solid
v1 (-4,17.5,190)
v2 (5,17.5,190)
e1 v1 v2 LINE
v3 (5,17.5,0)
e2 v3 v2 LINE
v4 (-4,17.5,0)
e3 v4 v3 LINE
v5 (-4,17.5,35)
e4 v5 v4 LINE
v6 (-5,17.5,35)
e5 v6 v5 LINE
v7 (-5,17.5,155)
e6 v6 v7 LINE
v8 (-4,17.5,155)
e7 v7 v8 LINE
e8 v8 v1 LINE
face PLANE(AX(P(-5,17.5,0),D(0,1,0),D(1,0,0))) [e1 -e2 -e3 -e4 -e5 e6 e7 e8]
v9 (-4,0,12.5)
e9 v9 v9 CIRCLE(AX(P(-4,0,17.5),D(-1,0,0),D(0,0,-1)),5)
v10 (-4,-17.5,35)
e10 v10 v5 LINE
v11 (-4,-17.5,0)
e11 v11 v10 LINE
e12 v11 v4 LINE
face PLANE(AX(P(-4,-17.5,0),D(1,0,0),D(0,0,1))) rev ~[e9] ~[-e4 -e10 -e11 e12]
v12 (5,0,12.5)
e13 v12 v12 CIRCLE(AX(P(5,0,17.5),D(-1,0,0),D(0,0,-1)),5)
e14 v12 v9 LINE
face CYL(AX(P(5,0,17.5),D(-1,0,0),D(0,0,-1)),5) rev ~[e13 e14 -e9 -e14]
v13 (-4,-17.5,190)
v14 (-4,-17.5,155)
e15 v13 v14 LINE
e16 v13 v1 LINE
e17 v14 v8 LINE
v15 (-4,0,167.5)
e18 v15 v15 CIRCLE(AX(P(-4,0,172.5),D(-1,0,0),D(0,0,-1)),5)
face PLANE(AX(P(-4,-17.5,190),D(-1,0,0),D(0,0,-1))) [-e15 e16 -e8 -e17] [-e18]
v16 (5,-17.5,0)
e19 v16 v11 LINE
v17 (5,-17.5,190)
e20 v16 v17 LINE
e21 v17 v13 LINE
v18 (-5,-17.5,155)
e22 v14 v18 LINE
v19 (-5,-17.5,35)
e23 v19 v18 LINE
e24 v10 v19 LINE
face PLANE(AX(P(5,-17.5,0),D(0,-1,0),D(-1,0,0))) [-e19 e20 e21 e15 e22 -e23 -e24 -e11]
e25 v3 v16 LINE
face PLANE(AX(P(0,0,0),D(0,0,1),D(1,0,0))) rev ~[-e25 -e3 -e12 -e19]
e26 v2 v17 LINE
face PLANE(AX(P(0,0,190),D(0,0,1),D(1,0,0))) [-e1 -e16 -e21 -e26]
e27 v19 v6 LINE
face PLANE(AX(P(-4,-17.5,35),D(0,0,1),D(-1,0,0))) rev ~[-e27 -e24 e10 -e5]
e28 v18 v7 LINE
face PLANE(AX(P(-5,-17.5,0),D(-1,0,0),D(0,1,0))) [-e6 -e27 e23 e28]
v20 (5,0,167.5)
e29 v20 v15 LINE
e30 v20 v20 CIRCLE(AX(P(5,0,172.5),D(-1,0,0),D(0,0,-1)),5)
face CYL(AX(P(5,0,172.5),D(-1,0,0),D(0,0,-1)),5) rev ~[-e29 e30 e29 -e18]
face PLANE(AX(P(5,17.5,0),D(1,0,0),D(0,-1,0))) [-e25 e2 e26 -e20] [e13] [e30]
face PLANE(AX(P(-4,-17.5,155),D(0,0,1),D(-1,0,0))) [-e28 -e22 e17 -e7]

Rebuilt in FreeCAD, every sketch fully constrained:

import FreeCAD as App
import Part
import Sketcher
from FreeCAD import Vector
Q = App.Units.Quantity


def add_polygon(sketch, points):
    """Adds a closed chain of lines whose ends are joined by coincident constraints."""
    first, n = sketch.GeometryCount, len(points)
    for a, b in zip(points, points[1:] + points[:1]):
        sketch.addGeometry(Part.LineSegment(App.Vector(*a, 0), App.Vector(*b, 0)), False)
    for i in range(n):
        sketch.addConstraint(Sketcher.Constraint("Coincident", first + i, 2, first + (i + 1) % n, 1))

doc = App.newDocument("Part")
body = doc.addObject("PartDesign::Body", "Body")

# Sketch on XY plane
sketch1 = body.newObject("Sketcher::SketchObject", "Sketch")
sketch1.AttachmentSupport = (doc.getObject("XY_Plane"), [""])
sketch1.MapMode = "FlatFace"
add_polygon(sketch1, [(-5, -18), (5, -18), (5, 18), (-5, 18)])  # lines 0-3
sketch1.addConstraint([
    Sketcher.Constraint("Horizontal", 0),
    Sketcher.Constraint("Vertical", 1),
    Sketcher.Constraint("Horizontal", 2),
    Sketcher.Constraint("Vertical", 3),
    Sketcher.Constraint("Symmetric", 0, 2, 2, 2, -1, 1),
    Sketcher.Constraint("DistanceX", 0, 1, 0, 2, Q("10 mm")),
    Sketcher.Constraint("DistanceY", 1, 1, 1, 2, Q("35 mm")),
])
pad1 = body.newObject("PartDesign::Pad", "Pad")
pad1.Profile = sketch1
pad1.Length = 190

# Sketch on YZ plane
sketch2 = body.newObject("Sketcher::SketchObject", "Sketch001")
sketch2.AttachmentSupport = (doc.getObject("YZ_Plane"), [""])
sketch2.MapMode = "FlatFace"
sketch2.AttachmentOffset = App.Placement(Vector(0, 0, 5), App.Rotation())
sketch2.addGeometry([
    Part.Circle(Vector(0, 18, 0), Vector(0, 0, 1), 5),
    Part.Circle(Vector(0, 172, 0), Vector(0, 0, 1), 5),
], False)
sketch2.addConstraint([
    Sketcher.Constraint("Equal", 0, 1),
    Sketcher.Constraint("PointOnObject", 0, 3, -2),
    Sketcher.Constraint("PointOnObject", 1, 3, -2),
    Sketcher.Constraint("Diameter", 0, Q("10 mm")),
    Sketcher.Constraint("DistanceY", 0, 3, 1, 3, Q("155 mm")),
    Sketcher.Constraint("DistanceY", -1, 1, 0, 3, Q("17.5 mm")),
])
doc.recompute()
hole = body.newObject("PartDesign::Hole", "Hole")
hole.Profile = sketch2
hole.ThreadType = "None"
hole.Diameter = 10
hole.DepthType = "ThroughAll"

# Sketch on XZ plane
sketch3 = body.newObject("Sketcher::SketchObject", "Sketch002")
sketch3.AttachmentSupport = (doc.getObject("XZ_Plane"), [""])
sketch3.MapMode = "FlatFace"
sketch3.AttachmentOffset = App.Placement(Vector(0, 0, 17.5), App.Rotation())
add_polygon(sketch3, [(-4, 190), (-5, 190), (-5, 155), (-4, 155)])  # lines 0-3
add_polygon(sketch3, [(-5, 35), (-5, 0), (-4, 0), (-4, 35)])  # lines 4-7
sketch3.addConstraint([
    Sketcher.Constraint("Horizontal", 0),
    Sketcher.Constraint("Vertical", 1),
    Sketcher.Constraint("Horizontal", 2),
    Sketcher.Constraint("Vertical", 3),
    Sketcher.Constraint("Vertical", 4),
    Sketcher.Constraint("Horizontal", 5),
    Sketcher.Constraint("Vertical", 6),
    Sketcher.Constraint("Horizontal", 7),
    Sketcher.Constraint("PointOnObject", 4, 2, -1),
    Sketcher.Constraint("Vertical", 1, 2, 4, 2),
    Sketcher.Constraint("Vertical", 3, 2, 5, 2),
    Sketcher.Constraint("Equal", 3, 4),
    Sketcher.Constraint("DistanceX", 0, 2, 0, 1, Q("1 mm")),
    Sketcher.Constraint("DistanceY", 1, 2, 1, 1, Q("35 mm")),
    Sketcher.Constraint("DistanceX", 0, 2, -1, 1, Q("5 mm")),
    Sketcher.Constraint("DistanceY", -1, 1, 0, 2, Q("190 mm")),
])
pocket1 = body.newObject("PartDesign::Pocket", "Pocket")
pocket1.Profile = sketch3
pocket1.Type = "ThroughAll"

doc.recompute()
